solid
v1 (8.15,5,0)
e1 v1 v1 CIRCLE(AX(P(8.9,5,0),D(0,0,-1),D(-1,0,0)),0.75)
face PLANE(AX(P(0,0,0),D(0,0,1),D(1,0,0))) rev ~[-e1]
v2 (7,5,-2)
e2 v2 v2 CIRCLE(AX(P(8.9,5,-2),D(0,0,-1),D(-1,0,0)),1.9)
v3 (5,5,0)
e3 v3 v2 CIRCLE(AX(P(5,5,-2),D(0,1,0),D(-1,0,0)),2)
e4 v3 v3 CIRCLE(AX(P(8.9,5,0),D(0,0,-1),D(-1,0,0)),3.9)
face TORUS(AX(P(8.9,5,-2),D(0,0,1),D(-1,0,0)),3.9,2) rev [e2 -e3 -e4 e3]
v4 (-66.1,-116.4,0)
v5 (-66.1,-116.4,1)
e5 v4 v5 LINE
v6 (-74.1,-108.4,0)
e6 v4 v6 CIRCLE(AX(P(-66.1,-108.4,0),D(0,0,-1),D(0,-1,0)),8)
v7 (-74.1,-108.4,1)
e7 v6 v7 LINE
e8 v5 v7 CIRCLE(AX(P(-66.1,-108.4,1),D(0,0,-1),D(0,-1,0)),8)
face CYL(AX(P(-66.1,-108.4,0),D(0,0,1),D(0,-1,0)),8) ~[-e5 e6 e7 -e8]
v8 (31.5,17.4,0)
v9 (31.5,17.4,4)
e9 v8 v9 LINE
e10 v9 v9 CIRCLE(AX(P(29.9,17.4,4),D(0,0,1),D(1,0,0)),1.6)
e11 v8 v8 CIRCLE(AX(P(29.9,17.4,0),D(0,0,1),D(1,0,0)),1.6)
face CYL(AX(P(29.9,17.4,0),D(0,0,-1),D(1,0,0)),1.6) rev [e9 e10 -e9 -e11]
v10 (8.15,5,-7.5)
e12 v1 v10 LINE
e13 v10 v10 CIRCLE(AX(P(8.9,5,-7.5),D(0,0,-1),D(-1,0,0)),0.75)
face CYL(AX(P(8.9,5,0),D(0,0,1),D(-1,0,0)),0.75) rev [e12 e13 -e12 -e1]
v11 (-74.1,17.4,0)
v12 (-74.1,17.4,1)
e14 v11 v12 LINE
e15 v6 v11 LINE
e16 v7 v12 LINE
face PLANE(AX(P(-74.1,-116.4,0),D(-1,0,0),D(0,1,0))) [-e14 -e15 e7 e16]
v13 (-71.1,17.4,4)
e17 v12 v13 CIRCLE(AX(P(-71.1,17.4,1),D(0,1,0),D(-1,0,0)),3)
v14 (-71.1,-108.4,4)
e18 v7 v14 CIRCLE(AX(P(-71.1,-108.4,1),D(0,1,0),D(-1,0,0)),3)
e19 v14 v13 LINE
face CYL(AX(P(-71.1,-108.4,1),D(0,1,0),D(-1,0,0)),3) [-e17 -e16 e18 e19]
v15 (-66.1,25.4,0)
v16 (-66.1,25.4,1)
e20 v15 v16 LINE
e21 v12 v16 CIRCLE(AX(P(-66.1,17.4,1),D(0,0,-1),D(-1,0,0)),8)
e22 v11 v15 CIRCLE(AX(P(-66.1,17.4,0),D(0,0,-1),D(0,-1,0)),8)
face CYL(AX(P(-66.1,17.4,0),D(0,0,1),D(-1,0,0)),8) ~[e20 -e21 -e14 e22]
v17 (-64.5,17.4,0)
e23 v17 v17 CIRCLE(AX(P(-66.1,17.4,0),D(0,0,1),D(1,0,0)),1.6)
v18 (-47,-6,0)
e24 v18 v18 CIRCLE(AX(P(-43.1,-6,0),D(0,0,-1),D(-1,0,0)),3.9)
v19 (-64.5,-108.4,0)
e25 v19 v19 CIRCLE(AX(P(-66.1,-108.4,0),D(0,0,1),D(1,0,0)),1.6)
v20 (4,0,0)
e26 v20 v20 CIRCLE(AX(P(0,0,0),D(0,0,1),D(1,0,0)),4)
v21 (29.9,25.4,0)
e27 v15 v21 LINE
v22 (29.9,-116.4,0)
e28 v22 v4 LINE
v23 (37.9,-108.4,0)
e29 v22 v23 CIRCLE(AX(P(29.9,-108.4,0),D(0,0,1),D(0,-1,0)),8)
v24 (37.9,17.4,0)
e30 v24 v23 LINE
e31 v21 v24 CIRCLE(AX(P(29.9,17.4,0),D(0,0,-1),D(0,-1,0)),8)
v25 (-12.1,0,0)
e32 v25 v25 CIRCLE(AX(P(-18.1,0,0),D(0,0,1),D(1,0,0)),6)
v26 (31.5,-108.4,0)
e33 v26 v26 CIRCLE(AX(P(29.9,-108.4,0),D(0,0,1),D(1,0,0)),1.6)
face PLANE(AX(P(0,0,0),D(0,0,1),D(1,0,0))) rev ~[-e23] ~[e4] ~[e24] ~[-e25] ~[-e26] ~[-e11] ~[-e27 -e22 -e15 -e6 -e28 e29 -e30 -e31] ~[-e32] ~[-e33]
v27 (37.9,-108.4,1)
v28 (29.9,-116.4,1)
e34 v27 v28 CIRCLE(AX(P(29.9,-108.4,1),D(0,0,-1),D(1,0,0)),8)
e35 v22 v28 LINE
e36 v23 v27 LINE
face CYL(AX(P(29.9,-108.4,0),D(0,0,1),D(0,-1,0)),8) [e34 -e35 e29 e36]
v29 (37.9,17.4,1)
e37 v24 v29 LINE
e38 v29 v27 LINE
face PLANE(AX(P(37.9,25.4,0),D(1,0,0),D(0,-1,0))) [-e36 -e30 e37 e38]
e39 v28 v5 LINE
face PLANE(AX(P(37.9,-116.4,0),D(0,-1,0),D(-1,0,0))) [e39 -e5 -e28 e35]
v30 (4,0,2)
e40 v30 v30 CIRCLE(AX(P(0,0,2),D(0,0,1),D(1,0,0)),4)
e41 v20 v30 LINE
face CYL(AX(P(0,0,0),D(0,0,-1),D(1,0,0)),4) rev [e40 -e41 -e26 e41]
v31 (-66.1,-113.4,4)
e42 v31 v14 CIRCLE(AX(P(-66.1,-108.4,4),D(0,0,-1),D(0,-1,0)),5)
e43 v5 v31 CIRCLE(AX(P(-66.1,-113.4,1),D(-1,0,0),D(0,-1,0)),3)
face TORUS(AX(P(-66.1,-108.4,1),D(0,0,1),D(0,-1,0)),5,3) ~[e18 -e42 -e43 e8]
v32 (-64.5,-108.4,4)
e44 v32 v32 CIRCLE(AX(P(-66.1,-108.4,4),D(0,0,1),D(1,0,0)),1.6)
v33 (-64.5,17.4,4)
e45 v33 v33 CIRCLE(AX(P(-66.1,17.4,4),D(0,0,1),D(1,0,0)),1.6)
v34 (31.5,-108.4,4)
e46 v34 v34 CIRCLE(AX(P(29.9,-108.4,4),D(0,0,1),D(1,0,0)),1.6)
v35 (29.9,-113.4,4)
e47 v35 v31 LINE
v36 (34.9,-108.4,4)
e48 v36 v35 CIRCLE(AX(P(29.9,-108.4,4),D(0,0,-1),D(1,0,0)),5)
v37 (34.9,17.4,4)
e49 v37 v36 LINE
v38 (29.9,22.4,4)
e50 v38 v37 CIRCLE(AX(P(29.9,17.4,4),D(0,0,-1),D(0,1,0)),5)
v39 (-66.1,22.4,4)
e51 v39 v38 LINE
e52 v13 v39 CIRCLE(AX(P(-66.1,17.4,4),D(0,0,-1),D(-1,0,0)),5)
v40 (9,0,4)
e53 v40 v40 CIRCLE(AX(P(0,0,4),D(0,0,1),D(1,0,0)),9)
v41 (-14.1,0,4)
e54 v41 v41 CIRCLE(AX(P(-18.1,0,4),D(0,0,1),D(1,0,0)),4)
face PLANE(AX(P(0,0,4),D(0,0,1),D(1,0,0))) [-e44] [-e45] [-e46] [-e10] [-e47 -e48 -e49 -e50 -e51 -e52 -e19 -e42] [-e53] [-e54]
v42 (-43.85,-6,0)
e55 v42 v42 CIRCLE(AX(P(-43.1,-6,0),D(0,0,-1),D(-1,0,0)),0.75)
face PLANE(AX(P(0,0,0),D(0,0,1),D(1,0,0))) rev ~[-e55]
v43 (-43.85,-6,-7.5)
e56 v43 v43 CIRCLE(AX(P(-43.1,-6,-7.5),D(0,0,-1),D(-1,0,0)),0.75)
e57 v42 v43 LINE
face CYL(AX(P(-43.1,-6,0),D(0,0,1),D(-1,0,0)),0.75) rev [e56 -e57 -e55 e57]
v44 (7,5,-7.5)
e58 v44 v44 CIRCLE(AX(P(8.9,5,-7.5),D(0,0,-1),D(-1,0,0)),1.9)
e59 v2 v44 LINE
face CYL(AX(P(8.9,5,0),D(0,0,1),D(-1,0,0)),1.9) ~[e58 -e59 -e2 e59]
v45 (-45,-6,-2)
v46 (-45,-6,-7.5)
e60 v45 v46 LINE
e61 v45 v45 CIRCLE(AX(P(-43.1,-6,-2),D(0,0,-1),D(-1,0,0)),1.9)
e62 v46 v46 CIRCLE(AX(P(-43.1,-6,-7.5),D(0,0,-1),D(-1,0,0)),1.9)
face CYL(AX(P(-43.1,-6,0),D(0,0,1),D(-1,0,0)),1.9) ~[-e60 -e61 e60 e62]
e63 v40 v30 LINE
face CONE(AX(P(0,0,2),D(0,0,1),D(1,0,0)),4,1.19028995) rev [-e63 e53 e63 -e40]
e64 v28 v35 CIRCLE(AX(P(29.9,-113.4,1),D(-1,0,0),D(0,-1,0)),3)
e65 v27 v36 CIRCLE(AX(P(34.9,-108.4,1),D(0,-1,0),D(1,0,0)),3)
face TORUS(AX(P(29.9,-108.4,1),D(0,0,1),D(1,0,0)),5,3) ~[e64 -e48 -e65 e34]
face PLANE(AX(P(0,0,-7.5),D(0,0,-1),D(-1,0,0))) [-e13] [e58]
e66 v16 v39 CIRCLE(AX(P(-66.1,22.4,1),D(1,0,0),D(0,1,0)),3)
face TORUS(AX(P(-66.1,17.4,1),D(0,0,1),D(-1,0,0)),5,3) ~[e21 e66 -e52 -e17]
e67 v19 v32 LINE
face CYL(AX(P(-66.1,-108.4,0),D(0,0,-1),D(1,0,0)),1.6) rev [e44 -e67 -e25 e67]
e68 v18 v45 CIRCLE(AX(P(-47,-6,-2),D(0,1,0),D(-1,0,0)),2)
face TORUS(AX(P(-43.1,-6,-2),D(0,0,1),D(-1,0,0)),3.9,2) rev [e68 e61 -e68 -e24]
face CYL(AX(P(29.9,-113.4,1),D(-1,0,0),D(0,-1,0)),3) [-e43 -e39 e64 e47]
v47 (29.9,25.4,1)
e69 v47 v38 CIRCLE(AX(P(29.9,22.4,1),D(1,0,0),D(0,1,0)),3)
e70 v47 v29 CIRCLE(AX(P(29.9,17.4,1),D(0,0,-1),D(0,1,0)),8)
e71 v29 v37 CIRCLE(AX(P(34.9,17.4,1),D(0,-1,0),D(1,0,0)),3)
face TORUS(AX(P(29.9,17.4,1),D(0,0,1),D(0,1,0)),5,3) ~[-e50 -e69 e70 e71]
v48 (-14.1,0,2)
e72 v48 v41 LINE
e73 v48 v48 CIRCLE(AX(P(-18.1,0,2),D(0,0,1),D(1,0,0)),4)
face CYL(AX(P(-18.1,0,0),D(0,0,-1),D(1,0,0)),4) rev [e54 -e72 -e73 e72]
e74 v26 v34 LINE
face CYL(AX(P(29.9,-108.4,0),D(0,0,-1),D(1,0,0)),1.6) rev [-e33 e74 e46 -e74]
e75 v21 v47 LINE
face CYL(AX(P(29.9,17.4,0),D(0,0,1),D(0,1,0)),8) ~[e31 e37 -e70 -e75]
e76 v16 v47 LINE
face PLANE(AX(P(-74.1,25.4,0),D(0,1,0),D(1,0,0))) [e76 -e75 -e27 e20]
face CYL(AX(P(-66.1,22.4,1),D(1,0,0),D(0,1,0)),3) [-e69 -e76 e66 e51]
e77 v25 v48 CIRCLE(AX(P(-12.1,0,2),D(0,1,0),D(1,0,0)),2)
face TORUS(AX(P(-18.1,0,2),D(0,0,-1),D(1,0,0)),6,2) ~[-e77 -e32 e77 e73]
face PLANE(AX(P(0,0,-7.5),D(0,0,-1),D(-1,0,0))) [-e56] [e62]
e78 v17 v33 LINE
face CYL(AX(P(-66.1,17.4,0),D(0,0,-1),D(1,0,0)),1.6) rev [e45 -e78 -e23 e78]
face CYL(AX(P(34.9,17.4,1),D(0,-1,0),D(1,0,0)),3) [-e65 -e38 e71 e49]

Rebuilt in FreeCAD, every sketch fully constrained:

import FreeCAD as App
import Part
import Sketcher

V = App.Vector


def edges_at(feature, points):
    """Names of the edges that pass closest to the given points."""
    edges = feature.Shape.Edges
    near = lambda p: min(range(len(edges)), key=lambda i: edges[i].distToShape(Part.Vertex(*p))[0])
    return sorted({f"Edge{near(p) + 1}" for p in points})


def add_polygon(sketch, points):
    """Adds a closed chain of lines whose ends are joined by coincident constraints."""
    first, n = sketch.GeometryCount, len(points)
    for a, b in zip(points, points[1:] + points[:1]):
        sketch.addGeometry(Part.LineSegment(App.Vector(*a, 0), App.Vector(*b, 0)), False)
    for i in range(n):
        sketch.addConstraint(Sketcher.Constraint("Coincident", first + i, 2, first + (i + 1) % n, 1))

doc = App.newDocument("Part")
body = doc.addObject("PartDesign::Body", "Body")

# Sketch on XY plane
sketch1 = body.newObject("Sketcher::SketchObject", "Sketch")
sketch1.AttachmentSupport = (doc.getObject("XY_Plane"), [""])
sketch1.MapMode = "FlatFace"
add_polygon(sketch1, [(-74.1, -116.4), (37.9, -116.4), (37.9, 25.4), (-74.1, 25.4)])  # lines 0-3
sketch1.addGeometry(Part.Circle(V(-66.1, -108.4, 0), V(0, 0, 1), 1.6), False)  # 4
sketch1.addGeometry(Part.Circle(V(29.9, -108.4, 0), V(0, 0, 1), 1.6), False)  # 5
sketch1.addGeometry(Part.Circle(V(-66.1, 17.4, 0), V(0, 0, 1), 1.6), False)  # 6
sketch1.addGeometry(Part.Circle(V(-18.1, 0, 0), V(0, 0, 1), 4), False)  # 7
sketch1.addGeometry(Part.Circle(V(0, 0, 0), V(0, 0, 1), 4), False)  # 8
sketch1.addGeometry(Part.Circle(V(29.9, 17.4, 0), V(0, 0, 1), 1.6), False)  # 9
sketch1.addConstraint(Sketcher.Constraint("Horizontal", 0))
sketch1.addConstraint(Sketcher.Constraint("Vertical", 1))
sketch1.addConstraint(Sketcher.Constraint("Horizontal", 2))
sketch1.addConstraint(Sketcher.Constraint("Vertical", 3))
sketch1.addConstraint(Sketcher.Constraint("Coincident", 8, 3, -1, 1))
sketch1.addConstraint(Sketcher.Constraint("Equal", 4, 5))
sketch1.addConstraint(Sketcher.Constraint("Equal", 5, 6))
sketch1.addConstraint(Sketcher.Constraint("Equal", 7, 8))
sketch1.addConstraint(Sketcher.Constraint("Equal", 6, 9))
sketch1.addConstraint(Sketcher.Constraint("PointOnObject", 7, 3, -1))
sketch1.addConstraint(Sketcher.Constraint("Horizontal", 4, 3, 5, 3))
sketch1.addConstraint(Sketcher.Constraint("Horizontal", 6, 3, 9, 3))
sketch1.addConstraint(Sketcher.Constraint("Vertical", 4, 3, 6, 3))
sketch1.addConstraint(Sketcher.Constraint("Vertical", 5, 3, 9, 3))
sketch1.addConstraint(Sketcher.Constraint("Diameter", 7, 8.0))
sketch1.addConstraint(Sketcher.Constraint("Diameter", 4, 3.2))
sketch1.addConstraint(Sketcher.Constraint("DistanceX", 0, 1, 0, 2, 112.0))
sketch1.addConstraint(Sketcher.Constraint("DistanceY", 1, 1, 1, 2, 141.8))
sketch1.addConstraint(Sketcher.Constraint("DistanceX", 4, 3, 5, 3, 96.0))
sketch1.addConstraint(Sketcher.Constraint("DistanceX", 5, 3, 0, 2, 8.0))
sketch1.addConstraint(Sketcher.Constraint("DistanceY", 0, 2, 5, 3, 8.0))
sketch1.addConstraint(Sketcher.Constraint("DistanceY", 9, 3, 1, 2, 8.0))
sketch1.addConstraint(Sketcher.Constraint("DistanceY", -1, 1, 1, 2, 25.4))
sketch1.addConstraint(Sketcher.Constraint("DistanceX", 6, 3, 7, 3, 48.0))
sketch1.addConstraint(Sketcher.Constraint("DistanceX", 4, 3, -1, 1, 66.1))
pad1 = body.newObject("PartDesign::Pad", "Pad")
pad1.Profile = sketch1
pad1.Length = 4
doc.recompute()

chamfer = body.newObject("PartDesign::Chamfer", "Chamfer")
chamfer.Base = (pad1, edges_at(pad1, [(-4, 0, 4)]))
chamfer.ChamferType = "Two distances"
chamfer.Size = 5
chamfer.Size2 = 2
chamfer.FlipDirection = True
doc.recompute()

fillet = body.newObject("PartDesign::Fillet", "Fillet")
fillet.Base = (chamfer, edges_at(chamfer, [
    (37.9, 25.4, 2),
    (-74.1, 25.4, 2),
    (-74.1, -116.4, 2),
    (37.9, -116.4, 2),
]))
fillet.Radius = 8
doc.recompute()

fillet2 = body.newObject("PartDesign::Fillet", "Fillet001")
fillet2.Base = (fillet, edges_at(fillet, [(-22.1, 0, 0)]))
fillet2.Radius = 2

# Sketch on XY plane
sketch2 = body.newObject("Sketcher::SketchObject", "Sketch001")
sketch2.AttachmentSupport = (doc.getObject("XY_Plane"), [""])
sketch2.MapMode = "FlatFace"
sketch2.addGeometry(Part.Circle(V(-43.1, -6, 0), V(0, 0, 1), 1.9), False)
sketch2.addGeometry(Part.Circle(V(-43.1, -6, 0), V(0, 0, 1), 0.75), False)
sketch2.addGeometry(Part.Circle(V(8.9, 5, 0), V(0, 0, 1), 1.9), False)
sketch2.addGeometry(Part.Circle(V(8.9, 5, 0), V(0, 0, 1), 0.75), False)
sketch2.addConstraint(Sketcher.Constraint("Coincident", 1, 3, 0, 3))
sketch2.addConstraint(Sketcher.Constraint("Coincident", 3, 3, 2, 3))
sketch2.addConstraint(Sketcher.Constraint("Equal", 0, 2))
sketch2.addConstraint(Sketcher.Constraint("Equal", 1, 3))
sketch2.addConstraint(Sketcher.Constraint("Diameter", 0, 3.8))
sketch2.addConstraint(Sketcher.Constraint("Diameter", 1, 1.5))
sketch2.addConstraint(Sketcher.Constraint("DistanceY", 0, 3, -1, 1, 6.0))
sketch2.addConstraint(Sketcher.Constraint("DistanceY", -1, 1, 2, 3, 5.0))
sketch2.addConstraint(Sketcher.Constraint("DistanceX", 0, 3, 2, 3, 52.0))
sketch2.addConstraint(Sketcher.Constraint("DistanceX", 0, 3, -1, 1, 43.1))
pad2 = body.newObject("PartDesign::Pad", "Pad001")
pad2.Profile = sketch2
pad2.Length = 7.5
pad2.Reversed = True
doc.recompute()

fillet3 = body.newObject("PartDesign::Fillet", "Fillet002")
fillet3.Base = (pad2, edges_at(pad2, [(-41.2, -6, 0), (10.8, 5, 0)]))
fillet3.Radius = 2
doc.recompute()

fillet4 = body.newObject("PartDesign::Fillet", "Fillet003")
fillet4.Base = (fillet3, edges_at(fillet3, [
    (35.557, 23.057, 4),
    (-18.1, 25.4, 4),
    (-71.757, 23.057, 4),
    (-74.1, -45.5, 4),
    (-71.757, -114.057, 4),
    (-18.1, -116.4, 4),
    (35.557, -114.057, 4),
    (37.9, -45.5, 4),
]))
fillet4.Radius = 3

doc.recompute()
